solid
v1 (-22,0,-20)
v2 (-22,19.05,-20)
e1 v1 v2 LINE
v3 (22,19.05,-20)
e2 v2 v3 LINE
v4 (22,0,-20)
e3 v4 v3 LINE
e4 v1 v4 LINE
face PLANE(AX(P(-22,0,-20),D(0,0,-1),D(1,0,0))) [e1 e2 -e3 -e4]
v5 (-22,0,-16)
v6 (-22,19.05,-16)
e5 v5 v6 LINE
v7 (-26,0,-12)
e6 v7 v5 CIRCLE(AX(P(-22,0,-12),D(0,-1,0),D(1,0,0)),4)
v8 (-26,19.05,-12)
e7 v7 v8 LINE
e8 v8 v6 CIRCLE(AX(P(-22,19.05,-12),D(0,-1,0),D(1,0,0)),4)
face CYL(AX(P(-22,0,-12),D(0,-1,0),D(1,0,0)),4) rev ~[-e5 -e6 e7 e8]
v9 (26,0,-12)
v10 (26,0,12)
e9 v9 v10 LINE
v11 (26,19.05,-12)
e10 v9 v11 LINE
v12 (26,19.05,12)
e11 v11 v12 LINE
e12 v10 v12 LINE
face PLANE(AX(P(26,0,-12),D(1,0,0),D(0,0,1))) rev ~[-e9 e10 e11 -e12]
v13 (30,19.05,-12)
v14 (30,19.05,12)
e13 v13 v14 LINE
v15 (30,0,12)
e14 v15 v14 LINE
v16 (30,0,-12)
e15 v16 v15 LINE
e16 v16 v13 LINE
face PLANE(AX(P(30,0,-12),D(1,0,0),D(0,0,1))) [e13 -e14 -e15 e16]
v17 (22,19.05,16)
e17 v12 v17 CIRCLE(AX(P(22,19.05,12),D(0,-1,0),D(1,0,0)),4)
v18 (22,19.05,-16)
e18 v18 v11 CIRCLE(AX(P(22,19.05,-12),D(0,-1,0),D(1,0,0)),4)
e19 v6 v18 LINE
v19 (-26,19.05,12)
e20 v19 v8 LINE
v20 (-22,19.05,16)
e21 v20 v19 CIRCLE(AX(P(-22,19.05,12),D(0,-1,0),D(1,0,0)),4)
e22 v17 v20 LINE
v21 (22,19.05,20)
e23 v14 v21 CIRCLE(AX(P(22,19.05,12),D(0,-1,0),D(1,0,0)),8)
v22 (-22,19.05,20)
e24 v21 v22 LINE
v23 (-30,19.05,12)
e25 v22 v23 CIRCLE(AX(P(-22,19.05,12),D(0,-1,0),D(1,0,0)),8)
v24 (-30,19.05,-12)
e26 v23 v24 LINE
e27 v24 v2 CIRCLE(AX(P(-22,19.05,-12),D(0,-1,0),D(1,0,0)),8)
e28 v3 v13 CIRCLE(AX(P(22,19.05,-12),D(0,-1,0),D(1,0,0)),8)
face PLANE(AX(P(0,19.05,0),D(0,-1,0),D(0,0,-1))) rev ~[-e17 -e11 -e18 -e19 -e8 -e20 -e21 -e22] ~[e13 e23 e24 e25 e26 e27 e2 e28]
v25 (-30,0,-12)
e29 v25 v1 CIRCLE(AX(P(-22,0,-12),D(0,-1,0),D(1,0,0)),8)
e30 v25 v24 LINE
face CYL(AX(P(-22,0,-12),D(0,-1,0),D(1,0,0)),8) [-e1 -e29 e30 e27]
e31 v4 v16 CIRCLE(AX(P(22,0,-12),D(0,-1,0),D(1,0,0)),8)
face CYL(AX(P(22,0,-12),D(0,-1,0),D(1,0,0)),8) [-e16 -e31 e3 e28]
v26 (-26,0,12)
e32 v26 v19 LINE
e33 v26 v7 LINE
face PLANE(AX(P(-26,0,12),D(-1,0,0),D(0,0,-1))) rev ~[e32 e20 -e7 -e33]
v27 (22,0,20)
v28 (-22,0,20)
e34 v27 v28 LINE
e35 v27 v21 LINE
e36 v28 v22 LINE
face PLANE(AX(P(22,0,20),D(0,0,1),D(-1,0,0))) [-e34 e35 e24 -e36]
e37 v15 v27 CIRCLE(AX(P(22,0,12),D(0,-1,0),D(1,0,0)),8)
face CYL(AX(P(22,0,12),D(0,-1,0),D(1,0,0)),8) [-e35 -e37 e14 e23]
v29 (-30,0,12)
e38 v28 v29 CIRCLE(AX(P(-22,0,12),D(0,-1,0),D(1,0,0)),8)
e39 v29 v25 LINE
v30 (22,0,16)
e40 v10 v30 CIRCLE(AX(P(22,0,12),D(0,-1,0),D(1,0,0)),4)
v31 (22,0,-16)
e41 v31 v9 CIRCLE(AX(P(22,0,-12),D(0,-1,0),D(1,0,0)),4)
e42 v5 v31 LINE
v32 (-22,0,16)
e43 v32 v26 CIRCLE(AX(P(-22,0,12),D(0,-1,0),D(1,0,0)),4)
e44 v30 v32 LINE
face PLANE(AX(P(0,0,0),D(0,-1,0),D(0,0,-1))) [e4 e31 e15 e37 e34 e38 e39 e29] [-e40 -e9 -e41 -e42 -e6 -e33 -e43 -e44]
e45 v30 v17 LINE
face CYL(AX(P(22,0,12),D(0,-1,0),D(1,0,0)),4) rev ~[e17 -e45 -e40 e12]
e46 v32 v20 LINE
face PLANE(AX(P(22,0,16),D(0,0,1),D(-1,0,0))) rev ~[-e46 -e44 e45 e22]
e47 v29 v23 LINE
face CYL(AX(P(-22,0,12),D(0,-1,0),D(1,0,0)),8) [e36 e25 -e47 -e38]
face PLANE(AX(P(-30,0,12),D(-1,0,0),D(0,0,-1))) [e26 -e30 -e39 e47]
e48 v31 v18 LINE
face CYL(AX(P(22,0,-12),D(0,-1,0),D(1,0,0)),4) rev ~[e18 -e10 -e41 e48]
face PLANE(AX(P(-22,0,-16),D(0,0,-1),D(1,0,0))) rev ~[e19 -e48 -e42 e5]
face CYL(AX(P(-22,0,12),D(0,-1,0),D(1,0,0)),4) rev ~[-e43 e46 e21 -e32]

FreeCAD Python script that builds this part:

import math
import FreeCAD as App
import Part
import Sketcher

V = App.Vector
Q = App.Units.Quantity

doc = App.newDocument("Part")
body = doc.addObject("PartDesign::Body", "Body")

sketch1 = doc.addObject("Sketcher::SketchObject", "Sketch")
body.addObject(sketch1)
sketch1.AttachmentSupport = (doc.XZ_Plane, [""])
sketch1.MapMode = "FlatFace"
sketch1.addGeometry(Part.LineSegment(V(22, 20, 0), V(-22, 20, 0)), False)
sketch1.addGeometry(Part.ArcOfCircle(Part.Circle(V(-22, 12, 0), V(0, 0, 1), 8), math.radians(90), math.radians(180)), False)
sketch1.addGeometry(Part.LineSegment(V(-30, 12, 0), V(-30, -12, 0)), False)
sketch1.addGeometry(Part.ArcOfCircle(Part.Circle(V(-22, -12, 0), V(0, 0, 1), 8), math.radians(180), math.radians(270)), False)
sketch1.addGeometry(Part.LineSegment(V(-22, -20, 0), V(22, -20, 0)), False)
sketch1.addGeometry(Part.ArcOfCircle(Part.Circle(V(22, -12, 0), V(0, 0, 1), 8), math.radians(-90), math.radians(0)), False)
sketch1.addGeometry(Part.LineSegment(V(30, -12, 0), V(30, 12, 0)), False)
sketch1.addGeometry(Part.ArcOfCircle(Part.Circle(V(22, 12, 0), V(0, 0, 1), 8), math.radians(0), math.radians(90)), False)
sketch1.addGeometry(Part.ArcOfCircle(Part.Circle(V(-22, 12, 0), V(0, 0, 1), 4), math.radians(90), math.radians(180)), False)
sketch1.addGeometry(Part.LineSegment(V(-22, 16, 0), V(22, 16, 0)), False)
sketch1.addGeometry(Part.ArcOfCircle(Part.Circle(V(22, 12, 0), V(0, 0, 1), 4), math.radians(0), math.radians(90)), False)
sketch1.addGeometry(Part.LineSegment(V(26, 12, 0), V(26, -12, 0)), False)
sketch1.addGeometry(Part.ArcOfCircle(Part.Circle(V(22, -12, 0), V(0, 0, 1), 4), math.radians(-90), math.radians(0)), False)
sketch1.addGeometry(Part.LineSegment(V(22, -16, 0), V(-22, -16, 0)), False)
sketch1.addGeometry(Part.ArcOfCircle(Part.Circle(V(-22, -12, 0), V(0, 0, 1), 4), math.radians(180), math.radians(270)), False)
sketch1.addGeometry(Part.LineSegment(V(-26, -12, 0), V(-26, 12, 0)), False)
sketch1.addConstraint(Sketcher.Constraint("Tangent", 0, 2, 1, 1))
sketch1.addConstraint(Sketcher.Constraint("Tangent", 1, 2, 2, 1))
sketch1.addConstraint(Sketcher.Constraint("Tangent", 2, 2, 3, 1))
sketch1.addConstraint(Sketcher.Constraint("Tangent", 3, 2, 4, 1))
sketch1.addConstraint(Sketcher.Constraint("Tangent", 4, 2, 5, 1))
sketch1.addConstraint(Sketcher.Constraint("Tangent", 5, 2, 6, 1))
sketch1.addConstraint(Sketcher.Constraint("Tangent", 6, 2, 7, 1))
sketch1.addConstraint(Sketcher.Constraint("Tangent", 7, 2, 0, 1))
sketch1.addConstraint(Sketcher.Constraint("Tangent", 8, 1, 9, 1))
sketch1.addConstraint(Sketcher.Constraint("Tangent", 9, 2, 10, 2))
sketch1.addConstraint(Sketcher.Constraint("Tangent", 10, 1, 11, 1))
sketch1.addConstraint(Sketcher.Constraint("Tangent", 11, 2, 12, 2))
sketch1.addConstraint(Sketcher.Constraint("Tangent", 12, 1, 13, 1))
sketch1.addConstraint(Sketcher.Constraint("Tangent", 13, 2, 14, 2))
sketch1.addConstraint(Sketcher.Constraint("Tangent", 14, 1, 15, 1))
sketch1.addConstraint(Sketcher.Constraint("Tangent", 15, 2, 8, 2))
sketch1.addConstraint(Sketcher.Constraint("Horizontal", 0))
sketch1.addConstraint(Sketcher.Constraint("Vertical", 2))
sketch1.addConstraint(Sketcher.Constraint("Horizontal", 4))
sketch1.addConstraint(Sketcher.Constraint("Vertical", 6))
sketch1.addConstraint(Sketcher.Constraint("Horizontal", 9))
sketch1.addConstraint(Sketcher.Constraint("Vertical", 11))
sketch1.addConstraint(Sketcher.Constraint("Horizontal", 13))
sketch1.addConstraint(Sketcher.Constraint("Vertical", 15))
sketch1.addConstraint(Sketcher.Constraint("Coincident", 8, 3, 1, 3))
sketch1.addConstraint(Sketcher.Constraint("Coincident", 10, 3, 7, 3))
sketch1.addConstraint(Sketcher.Constraint("Coincident", 12, 3, 5, 3))
sketch1.addConstraint(Sketcher.Constraint("Equal", 1, 3))
sketch1.addConstraint(Sketcher.Constraint("Equal", 3, 5))
sketch1.addConstraint(Sketcher.Constraint("Equal", 5, 7))
sketch1.addConstraint(Sketcher.Constraint("Equal", 12, 14))
sketch1.addConstraint(Sketcher.Constraint("Symmetric", 1, 3, 5, 3, -1, 1))
sketch1.addConstraint(Sketcher.Constraint("Radius", 1, Q("8 mm")))
sketch1.addConstraint(Sketcher.Constraint("Radius", 8, Q("4 mm")))
sketch1.addConstraint(Sketcher.Constraint("DistanceX", 0, 2, 0, 1, Q("44 mm")))
sketch1.addConstraint(Sketcher.Constraint("DistanceY", 2, 2, 2, 1, Q("24 mm")))
pad1 = doc.addObject("PartDesign::Pad", "Pad")
body.addObject(pad1)
pad1.Profile = sketch1
pad1.Length = 19.05
pad1.Reversed = True

doc.recompute()
